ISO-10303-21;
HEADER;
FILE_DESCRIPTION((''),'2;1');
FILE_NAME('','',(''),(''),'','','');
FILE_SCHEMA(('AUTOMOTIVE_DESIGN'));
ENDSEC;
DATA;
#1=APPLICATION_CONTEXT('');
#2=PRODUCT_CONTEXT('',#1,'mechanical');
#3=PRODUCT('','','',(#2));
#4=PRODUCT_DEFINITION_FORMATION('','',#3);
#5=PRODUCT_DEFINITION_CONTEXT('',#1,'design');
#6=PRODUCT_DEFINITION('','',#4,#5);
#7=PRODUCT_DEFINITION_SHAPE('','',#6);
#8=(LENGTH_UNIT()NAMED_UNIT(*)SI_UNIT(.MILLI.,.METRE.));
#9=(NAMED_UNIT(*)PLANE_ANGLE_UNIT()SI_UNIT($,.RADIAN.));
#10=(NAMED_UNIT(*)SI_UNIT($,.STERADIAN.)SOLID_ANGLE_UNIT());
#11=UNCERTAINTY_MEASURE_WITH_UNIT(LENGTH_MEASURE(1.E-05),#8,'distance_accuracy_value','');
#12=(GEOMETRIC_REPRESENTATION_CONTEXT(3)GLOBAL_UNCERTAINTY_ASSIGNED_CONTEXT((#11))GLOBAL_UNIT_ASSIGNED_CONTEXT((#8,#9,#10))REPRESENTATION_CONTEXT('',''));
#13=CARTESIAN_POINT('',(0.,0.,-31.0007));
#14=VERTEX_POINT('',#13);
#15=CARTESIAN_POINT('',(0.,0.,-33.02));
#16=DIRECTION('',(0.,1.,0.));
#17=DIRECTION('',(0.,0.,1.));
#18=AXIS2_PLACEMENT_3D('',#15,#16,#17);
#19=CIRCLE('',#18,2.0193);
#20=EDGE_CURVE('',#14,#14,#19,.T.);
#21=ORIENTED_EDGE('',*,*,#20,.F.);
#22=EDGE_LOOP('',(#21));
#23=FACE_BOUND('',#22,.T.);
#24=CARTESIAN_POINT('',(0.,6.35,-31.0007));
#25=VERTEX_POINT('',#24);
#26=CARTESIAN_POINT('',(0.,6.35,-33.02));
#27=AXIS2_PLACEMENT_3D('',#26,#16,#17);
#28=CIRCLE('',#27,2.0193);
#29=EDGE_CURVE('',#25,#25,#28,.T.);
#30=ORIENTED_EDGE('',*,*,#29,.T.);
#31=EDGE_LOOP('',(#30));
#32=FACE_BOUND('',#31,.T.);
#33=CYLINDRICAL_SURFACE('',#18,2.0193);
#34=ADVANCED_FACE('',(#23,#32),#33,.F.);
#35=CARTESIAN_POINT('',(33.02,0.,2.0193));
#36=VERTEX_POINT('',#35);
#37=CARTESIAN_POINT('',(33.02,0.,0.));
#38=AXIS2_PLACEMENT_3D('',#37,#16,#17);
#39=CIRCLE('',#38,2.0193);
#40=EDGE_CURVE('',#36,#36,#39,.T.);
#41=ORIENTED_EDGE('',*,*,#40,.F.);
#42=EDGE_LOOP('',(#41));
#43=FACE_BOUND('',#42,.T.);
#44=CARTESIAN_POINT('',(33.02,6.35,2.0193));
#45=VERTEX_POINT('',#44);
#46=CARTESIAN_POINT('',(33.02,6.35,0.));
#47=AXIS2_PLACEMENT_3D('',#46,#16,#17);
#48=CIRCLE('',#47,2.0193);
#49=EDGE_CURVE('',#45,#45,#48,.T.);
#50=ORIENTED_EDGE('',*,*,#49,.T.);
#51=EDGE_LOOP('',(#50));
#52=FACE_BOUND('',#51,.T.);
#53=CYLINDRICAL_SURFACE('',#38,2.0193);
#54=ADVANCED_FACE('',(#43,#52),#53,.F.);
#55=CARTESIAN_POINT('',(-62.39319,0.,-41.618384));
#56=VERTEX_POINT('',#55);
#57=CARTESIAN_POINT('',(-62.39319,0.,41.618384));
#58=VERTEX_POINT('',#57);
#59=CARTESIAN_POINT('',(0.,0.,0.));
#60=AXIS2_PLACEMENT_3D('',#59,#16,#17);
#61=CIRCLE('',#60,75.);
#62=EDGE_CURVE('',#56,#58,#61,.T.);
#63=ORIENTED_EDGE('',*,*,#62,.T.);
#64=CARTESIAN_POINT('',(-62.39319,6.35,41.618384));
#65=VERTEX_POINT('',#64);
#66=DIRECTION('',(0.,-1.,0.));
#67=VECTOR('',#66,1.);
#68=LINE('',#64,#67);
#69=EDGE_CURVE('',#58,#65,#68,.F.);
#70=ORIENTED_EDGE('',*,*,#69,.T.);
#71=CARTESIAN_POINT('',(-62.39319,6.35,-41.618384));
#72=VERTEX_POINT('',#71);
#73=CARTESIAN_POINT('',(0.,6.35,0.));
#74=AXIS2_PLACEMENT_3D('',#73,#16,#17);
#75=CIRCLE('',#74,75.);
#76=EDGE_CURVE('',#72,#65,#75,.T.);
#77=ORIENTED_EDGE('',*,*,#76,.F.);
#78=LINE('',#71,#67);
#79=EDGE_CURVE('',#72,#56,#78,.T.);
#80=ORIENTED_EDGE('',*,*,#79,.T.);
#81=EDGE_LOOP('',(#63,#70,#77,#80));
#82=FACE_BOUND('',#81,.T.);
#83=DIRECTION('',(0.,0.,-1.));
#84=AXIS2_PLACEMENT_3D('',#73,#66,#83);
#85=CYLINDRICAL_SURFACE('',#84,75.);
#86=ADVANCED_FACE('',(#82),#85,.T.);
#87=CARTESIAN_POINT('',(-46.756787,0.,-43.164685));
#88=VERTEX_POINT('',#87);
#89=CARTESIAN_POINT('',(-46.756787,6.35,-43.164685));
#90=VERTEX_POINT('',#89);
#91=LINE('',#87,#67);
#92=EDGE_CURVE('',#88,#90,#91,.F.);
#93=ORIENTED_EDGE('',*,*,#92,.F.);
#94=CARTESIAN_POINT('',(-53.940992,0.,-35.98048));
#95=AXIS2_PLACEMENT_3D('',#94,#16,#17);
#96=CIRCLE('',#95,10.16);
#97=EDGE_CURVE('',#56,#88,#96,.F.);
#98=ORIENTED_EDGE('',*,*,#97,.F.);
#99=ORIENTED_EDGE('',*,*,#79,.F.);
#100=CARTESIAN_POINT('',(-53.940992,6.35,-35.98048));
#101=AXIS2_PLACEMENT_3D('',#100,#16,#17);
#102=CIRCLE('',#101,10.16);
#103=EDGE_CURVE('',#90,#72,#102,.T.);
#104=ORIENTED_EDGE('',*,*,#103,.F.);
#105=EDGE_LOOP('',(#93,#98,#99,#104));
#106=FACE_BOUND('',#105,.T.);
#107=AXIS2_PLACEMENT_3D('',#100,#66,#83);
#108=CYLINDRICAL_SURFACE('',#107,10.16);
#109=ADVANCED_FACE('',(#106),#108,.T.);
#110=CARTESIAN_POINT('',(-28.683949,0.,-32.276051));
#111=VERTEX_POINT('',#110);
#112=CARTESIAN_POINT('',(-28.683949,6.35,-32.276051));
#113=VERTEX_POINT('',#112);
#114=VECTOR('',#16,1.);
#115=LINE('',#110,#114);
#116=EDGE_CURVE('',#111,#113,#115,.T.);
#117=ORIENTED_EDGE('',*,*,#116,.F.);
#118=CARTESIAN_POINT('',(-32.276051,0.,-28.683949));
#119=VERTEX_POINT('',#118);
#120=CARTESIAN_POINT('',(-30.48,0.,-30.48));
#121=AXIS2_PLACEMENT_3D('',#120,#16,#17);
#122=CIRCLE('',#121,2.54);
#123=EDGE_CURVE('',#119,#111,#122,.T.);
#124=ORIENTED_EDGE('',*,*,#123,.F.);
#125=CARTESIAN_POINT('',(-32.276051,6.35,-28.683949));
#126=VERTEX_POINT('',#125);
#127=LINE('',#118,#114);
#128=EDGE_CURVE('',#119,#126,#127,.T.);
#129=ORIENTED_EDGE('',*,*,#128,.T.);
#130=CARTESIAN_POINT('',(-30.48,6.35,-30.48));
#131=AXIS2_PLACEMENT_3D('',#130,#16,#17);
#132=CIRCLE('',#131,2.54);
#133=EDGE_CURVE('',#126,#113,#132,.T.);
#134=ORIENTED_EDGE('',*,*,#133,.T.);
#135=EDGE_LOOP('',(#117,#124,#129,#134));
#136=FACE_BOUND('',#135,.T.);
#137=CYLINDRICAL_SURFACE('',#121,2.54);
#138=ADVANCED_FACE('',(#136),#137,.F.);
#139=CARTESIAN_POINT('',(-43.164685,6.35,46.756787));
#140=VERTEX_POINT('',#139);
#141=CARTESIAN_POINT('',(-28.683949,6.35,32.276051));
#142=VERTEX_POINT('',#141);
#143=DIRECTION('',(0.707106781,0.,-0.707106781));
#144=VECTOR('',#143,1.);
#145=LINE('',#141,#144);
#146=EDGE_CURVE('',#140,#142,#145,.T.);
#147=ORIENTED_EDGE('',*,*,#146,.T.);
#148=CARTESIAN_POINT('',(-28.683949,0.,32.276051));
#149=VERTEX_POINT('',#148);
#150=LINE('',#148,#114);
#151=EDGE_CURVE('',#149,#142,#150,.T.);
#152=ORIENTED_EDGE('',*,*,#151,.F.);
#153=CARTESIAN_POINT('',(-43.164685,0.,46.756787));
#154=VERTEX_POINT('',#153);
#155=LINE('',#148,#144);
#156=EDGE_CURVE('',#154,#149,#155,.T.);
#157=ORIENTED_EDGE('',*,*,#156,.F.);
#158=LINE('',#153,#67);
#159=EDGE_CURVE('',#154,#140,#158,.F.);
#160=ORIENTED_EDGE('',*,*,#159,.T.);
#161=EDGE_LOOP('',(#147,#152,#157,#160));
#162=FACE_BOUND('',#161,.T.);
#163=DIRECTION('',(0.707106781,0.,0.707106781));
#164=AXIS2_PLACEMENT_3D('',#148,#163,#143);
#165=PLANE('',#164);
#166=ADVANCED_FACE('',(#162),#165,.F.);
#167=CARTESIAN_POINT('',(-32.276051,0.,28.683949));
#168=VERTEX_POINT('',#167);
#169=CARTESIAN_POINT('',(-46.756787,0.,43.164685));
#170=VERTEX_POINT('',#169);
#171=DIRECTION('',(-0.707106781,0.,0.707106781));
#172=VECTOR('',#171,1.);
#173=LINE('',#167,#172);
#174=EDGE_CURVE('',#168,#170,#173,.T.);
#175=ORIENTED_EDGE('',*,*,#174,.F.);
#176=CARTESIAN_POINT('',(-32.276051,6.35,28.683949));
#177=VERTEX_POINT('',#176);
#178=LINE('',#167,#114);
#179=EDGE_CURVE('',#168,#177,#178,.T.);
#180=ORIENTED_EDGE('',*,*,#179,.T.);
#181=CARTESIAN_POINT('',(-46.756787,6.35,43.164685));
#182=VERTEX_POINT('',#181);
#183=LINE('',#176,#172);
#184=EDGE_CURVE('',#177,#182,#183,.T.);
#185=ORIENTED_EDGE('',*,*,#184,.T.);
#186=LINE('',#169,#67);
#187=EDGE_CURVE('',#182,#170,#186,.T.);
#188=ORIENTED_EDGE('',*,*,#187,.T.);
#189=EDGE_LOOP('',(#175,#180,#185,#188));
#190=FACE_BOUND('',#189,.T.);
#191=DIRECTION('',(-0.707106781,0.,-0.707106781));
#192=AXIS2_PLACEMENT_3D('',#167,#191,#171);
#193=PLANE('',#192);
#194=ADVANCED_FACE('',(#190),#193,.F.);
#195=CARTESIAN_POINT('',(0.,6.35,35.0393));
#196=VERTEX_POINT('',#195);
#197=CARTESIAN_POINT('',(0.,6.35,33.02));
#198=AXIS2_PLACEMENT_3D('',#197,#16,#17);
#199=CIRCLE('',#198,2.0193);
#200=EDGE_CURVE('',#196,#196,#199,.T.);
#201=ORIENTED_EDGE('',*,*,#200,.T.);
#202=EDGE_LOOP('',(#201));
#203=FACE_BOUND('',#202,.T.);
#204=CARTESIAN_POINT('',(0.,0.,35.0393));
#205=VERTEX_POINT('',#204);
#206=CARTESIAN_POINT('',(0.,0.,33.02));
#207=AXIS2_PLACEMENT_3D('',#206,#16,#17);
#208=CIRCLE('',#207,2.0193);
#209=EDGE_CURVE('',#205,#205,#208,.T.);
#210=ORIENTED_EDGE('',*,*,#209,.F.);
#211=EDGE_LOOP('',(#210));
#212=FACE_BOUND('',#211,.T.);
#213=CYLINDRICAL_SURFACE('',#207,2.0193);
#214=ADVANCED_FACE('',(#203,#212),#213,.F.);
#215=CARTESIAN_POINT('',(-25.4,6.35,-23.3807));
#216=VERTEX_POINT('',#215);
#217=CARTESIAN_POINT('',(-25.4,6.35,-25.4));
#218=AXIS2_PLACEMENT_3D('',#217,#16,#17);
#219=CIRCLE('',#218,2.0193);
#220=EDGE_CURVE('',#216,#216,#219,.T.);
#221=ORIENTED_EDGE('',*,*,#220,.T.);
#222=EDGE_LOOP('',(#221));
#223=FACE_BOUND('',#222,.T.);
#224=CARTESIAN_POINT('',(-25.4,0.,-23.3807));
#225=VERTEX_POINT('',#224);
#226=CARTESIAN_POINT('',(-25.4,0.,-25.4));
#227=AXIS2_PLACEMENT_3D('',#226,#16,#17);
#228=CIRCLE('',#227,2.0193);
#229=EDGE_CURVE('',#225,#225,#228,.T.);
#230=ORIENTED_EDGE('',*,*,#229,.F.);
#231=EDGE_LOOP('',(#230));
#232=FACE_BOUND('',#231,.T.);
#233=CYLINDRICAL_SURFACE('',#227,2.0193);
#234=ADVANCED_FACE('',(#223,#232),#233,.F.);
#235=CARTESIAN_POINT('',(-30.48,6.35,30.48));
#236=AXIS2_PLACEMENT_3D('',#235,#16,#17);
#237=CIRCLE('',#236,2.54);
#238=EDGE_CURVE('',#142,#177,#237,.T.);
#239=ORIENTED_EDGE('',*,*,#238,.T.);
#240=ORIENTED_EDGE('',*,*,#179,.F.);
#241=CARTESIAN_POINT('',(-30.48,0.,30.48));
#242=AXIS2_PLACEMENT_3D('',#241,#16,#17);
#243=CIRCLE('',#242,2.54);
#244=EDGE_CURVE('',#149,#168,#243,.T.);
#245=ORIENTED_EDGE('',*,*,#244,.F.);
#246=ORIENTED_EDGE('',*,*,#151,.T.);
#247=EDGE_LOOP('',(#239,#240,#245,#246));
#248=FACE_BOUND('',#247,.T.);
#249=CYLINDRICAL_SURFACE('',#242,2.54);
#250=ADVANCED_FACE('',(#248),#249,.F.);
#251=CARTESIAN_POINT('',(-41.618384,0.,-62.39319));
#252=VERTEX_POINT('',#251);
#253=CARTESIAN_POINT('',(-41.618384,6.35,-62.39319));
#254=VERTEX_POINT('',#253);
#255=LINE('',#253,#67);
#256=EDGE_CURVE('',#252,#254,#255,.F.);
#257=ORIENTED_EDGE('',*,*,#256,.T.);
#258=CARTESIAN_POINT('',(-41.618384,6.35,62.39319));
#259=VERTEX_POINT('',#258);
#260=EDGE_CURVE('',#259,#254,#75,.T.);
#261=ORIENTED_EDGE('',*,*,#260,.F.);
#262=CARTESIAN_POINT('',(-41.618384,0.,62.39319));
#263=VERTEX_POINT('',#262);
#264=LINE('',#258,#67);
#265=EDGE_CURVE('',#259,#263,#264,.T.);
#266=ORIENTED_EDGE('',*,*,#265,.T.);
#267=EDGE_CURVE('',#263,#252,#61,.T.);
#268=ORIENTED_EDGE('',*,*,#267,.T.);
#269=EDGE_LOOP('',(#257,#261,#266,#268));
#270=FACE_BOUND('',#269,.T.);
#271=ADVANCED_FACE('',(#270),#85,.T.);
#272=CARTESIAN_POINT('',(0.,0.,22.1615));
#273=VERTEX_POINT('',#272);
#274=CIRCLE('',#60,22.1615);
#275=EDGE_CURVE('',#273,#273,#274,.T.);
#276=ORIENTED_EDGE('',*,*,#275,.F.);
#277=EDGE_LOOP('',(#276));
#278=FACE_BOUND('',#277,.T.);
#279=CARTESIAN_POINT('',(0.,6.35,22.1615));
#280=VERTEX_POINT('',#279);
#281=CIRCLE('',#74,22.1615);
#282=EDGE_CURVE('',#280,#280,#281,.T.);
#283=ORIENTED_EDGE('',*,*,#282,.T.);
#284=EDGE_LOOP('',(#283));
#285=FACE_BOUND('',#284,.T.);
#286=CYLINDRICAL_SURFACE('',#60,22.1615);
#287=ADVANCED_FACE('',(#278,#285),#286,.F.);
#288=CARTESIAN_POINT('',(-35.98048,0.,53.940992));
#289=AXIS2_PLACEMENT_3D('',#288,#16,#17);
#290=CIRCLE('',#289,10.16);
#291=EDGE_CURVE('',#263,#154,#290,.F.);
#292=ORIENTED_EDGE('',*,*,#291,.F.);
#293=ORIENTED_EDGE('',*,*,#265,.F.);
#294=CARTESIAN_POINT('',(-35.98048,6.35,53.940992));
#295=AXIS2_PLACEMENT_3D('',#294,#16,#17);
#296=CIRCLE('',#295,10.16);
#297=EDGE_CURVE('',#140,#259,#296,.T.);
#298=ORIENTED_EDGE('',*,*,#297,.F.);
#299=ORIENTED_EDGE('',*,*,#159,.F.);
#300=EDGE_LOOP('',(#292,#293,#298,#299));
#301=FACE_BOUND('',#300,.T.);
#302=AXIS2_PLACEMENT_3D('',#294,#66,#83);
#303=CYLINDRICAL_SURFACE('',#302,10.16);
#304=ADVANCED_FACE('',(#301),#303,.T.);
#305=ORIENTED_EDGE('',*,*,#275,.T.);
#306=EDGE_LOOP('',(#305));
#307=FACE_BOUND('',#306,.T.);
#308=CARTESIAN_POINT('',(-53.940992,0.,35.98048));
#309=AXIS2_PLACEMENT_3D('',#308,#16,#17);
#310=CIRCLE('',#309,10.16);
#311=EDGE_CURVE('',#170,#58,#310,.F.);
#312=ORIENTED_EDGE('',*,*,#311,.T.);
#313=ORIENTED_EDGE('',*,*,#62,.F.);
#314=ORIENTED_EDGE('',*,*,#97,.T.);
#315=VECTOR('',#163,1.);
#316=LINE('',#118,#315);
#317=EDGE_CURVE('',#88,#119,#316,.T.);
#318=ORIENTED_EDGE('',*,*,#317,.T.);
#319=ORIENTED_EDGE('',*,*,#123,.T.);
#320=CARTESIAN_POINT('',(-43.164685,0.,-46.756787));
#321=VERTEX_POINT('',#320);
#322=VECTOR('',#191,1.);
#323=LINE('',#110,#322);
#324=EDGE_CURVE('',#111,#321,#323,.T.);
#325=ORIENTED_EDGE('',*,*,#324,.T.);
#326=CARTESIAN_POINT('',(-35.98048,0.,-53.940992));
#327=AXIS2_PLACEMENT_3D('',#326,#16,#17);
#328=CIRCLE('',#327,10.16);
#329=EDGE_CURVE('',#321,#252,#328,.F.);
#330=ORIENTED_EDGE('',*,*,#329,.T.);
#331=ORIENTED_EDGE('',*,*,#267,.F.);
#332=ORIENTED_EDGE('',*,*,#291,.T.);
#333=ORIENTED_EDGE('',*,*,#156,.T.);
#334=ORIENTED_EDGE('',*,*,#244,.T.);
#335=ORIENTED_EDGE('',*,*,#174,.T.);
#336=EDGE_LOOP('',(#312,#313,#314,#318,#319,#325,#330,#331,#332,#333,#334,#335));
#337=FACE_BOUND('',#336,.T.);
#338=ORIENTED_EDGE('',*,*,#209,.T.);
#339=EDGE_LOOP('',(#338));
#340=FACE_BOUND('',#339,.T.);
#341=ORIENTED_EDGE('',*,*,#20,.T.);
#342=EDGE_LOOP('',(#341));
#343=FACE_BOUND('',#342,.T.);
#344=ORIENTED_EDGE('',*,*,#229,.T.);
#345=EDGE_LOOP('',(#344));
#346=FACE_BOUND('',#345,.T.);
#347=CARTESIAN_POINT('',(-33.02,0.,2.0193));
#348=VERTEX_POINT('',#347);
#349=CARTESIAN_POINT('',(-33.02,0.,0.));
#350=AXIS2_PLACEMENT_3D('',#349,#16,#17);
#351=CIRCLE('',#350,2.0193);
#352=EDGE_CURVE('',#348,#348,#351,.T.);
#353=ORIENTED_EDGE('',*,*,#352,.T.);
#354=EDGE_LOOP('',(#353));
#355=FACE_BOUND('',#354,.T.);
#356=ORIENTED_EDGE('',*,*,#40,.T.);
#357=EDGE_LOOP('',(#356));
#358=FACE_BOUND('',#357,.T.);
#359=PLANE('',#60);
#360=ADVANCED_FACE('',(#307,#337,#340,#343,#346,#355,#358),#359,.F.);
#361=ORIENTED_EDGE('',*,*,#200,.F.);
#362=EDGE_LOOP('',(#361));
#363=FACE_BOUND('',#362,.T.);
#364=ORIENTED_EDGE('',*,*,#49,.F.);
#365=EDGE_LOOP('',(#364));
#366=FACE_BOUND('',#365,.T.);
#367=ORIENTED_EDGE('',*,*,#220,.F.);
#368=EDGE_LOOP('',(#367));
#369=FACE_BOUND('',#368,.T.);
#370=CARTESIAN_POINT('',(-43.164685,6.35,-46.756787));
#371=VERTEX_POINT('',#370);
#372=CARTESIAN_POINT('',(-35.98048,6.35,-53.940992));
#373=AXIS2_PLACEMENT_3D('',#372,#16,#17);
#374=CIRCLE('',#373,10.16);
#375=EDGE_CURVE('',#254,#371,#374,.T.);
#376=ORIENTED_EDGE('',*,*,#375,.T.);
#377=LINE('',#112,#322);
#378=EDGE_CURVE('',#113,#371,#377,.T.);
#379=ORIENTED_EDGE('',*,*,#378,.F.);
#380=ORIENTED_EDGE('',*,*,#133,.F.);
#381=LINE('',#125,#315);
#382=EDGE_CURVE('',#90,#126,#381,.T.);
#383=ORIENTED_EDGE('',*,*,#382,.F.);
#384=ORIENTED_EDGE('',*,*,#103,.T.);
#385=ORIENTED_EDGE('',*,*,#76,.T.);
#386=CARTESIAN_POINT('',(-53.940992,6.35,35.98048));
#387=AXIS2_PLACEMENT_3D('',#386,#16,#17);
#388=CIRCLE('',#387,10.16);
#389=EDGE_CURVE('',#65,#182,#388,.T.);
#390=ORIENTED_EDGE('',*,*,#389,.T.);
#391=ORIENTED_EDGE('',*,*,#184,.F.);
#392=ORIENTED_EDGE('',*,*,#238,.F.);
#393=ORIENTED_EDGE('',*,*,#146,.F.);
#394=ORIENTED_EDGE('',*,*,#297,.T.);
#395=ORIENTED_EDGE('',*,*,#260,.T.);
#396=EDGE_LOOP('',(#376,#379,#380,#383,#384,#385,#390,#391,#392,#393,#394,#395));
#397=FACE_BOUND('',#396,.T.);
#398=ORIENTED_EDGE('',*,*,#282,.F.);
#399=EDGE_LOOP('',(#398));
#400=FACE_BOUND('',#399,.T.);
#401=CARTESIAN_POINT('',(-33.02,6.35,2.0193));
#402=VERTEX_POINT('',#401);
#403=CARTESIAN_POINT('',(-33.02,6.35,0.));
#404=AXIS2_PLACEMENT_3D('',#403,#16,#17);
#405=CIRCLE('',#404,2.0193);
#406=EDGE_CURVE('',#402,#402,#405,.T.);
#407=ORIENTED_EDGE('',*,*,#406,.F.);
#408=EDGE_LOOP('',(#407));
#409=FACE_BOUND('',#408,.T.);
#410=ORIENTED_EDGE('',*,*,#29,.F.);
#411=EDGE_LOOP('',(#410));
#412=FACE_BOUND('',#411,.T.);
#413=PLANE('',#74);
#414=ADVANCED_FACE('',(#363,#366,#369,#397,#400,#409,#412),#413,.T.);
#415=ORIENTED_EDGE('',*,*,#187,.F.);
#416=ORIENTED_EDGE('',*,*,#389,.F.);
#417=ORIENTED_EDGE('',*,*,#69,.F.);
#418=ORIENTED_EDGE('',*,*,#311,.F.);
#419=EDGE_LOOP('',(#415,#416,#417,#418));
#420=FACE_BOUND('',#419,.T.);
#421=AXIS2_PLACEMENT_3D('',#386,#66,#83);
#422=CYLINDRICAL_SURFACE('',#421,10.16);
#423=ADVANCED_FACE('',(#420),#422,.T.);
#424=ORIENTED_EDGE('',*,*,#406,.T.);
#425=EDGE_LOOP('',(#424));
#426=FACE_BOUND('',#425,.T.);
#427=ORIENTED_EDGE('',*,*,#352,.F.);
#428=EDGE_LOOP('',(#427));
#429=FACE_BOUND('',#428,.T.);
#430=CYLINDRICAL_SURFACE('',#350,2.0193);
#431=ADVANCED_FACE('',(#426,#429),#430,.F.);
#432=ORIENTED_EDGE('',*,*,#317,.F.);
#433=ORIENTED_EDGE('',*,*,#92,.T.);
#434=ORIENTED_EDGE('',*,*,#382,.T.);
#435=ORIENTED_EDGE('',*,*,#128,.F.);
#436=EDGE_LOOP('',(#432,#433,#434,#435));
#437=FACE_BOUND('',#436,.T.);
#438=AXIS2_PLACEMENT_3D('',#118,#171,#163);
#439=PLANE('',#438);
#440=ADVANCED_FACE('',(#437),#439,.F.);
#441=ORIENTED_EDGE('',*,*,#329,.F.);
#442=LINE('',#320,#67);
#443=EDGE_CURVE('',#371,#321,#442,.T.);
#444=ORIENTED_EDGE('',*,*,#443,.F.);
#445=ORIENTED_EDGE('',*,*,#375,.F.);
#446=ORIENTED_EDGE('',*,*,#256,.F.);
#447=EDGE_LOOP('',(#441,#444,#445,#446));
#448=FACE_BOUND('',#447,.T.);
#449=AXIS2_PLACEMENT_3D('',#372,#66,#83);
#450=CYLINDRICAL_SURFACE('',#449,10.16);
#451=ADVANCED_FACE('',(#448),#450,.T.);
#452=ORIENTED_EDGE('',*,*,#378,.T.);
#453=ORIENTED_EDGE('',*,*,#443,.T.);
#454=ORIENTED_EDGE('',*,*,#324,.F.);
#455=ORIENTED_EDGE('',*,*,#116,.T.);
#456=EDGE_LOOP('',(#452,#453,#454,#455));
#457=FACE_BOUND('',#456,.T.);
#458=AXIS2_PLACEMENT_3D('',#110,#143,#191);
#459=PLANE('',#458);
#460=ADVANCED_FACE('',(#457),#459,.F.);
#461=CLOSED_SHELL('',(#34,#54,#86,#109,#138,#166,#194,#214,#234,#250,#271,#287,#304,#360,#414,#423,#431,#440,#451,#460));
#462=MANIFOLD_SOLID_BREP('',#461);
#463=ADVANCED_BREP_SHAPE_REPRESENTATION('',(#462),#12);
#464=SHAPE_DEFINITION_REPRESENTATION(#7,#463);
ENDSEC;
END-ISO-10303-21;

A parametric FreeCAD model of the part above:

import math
import FreeCAD as App
import Part
import Sketcher
from FreeCAD import Vector
Q = App.Units.Quantity


def edges_at(feature, points):
    """Names of the edges that pass closest to the given points."""
    edges = feature.Shape.Edges
    near = lambda p: min(range(len(edges)), key=lambda i: edges[i].distToShape(Part.Vertex(*p))[0])
    return sorted({f"Edge{near(p) + 1}" for p in points})

doc = App.newDocument("Part")
params = doc.addObject("Spreadsheet::Sheet", "Params")
for row, (alias, value) in enumerate([
    ("pad1_length", "0.25 in"),
    ("sketch2_radius", "0.1 in"),
    ("sketch2_diameter", "1.745 in"),
    ("sketch2_diameter2", "0.159 in"),
    ("fillet_radius", "0.4 in"),
], start=1):
    params.set(f"A{row}", alias)
    params.set(f"B{row}", "=" + value)
    params.setAlias(f"B{row}", alias)

body = doc.addObject("PartDesign::Body", "Body")

sketch1 = body.newObject("Sketcher::SketchObject", "Sketch")
sketch1.AttachmentSupport = (doc.getObject("XZ_Plane"), [""])
sketch1.MapMode = "FlatFace"
sketch1.addGeometry(Part.Circle(Vector(0, 0, 0), Vector(0, 0, 1), 75), False)
sketch1.addConstraint([
    Sketcher.Constraint("Coincident", 0, 3, -1, 1),
    Sketcher.Constraint("Diameter", 0, Q("150 mm")),
])
pad1 = body.newObject("PartDesign::Pad", "Pad")
pad1.Profile = sketch1
pad1.setExpression("Length", "Params.pad1_length")
pad1.Reversed = True

sketch2 = body.newObject("Sketcher::SketchObject", "Sketch001")
sketch2.AttachmentSupport = (doc.getObject("XZ_Plane"), [""])
sketch2.MapMode = "FlatFace"
sketch2.AttachmentOffset = App.Placement(Vector(0, 0, -0.25 * 25.4), App.Rotation())
sketch2.addGeometry([
    Part.Circle(Vector(0, 0, 0), Vector(0, 0, 1), 22.2),
    Part.Circle(Vector(0, -33, 0), Vector(0, 0, 1), 2),
    Part.Circle(Vector(-33, 0, 0), Vector(0, 0, 1), 2),
    Part.Circle(Vector(0, 33, 0), Vector(0, 0, 1), 2),
    Part.Circle(Vector(33, 0, 0), Vector(0, 0, 1), 2),
    Part.Circle(Vector(-25.4, -25.4, 0), Vector(0, 0, 1), 2),
    Part.LineSegment(Vector(-54.8, -51.2, 0), Vector(-32.3, -28.7, 0)),
    Part.ArcOfCircle(Part.Circle(Vector(-30.5, -30.5, 0), Vector(0, 0, 1), 2.5), math.radians(-45), math.radians(135)),
    Part.LineSegment(Vector(-28.7, -32.3, 0), Vector(-51.2, -54.8, 0)),
    Part.ArcOfCircle(Part.Circle(Vector(-53, -53, 0), Vector(0, 0, 1), 2.5), math.radians(135), math.radians(315)),
    Part.LineSegment(Vector(-51.2, 54.8, 0), Vector(-28.7, 32.3, 0)),
    Part.ArcOfCircle(Part.Circle(Vector(-30.5, 30.5, 0), Vector(0, 0, 1), 2.5), math.radians(-135), math.radians(45)),
    Part.LineSegment(Vector(-32.3, 28.7, 0), Vector(-54.8, 51.2, 0)),
    Part.ArcOfCircle(Part.Circle(Vector(-53, 53, 0), Vector(0, 0, 1), 2.5), math.radians(45), math.radians(225)),
], False)
sketch2.addConstraint([
    Sketcher.Constraint("Tangent", 6, 2, 7, 2),
    Sketcher.Constraint("Tangent", 7, 1, 8, 1),
    Sketcher.Constraint("Tangent", 8, 2, 9, 2),
    Sketcher.Constraint("Tangent", 9, 1, 6, 1),
    Sketcher.Constraint("Tangent", 10, 2, 11, 2),
    Sketcher.Constraint("Tangent", 11, 1, 12, 1),
    Sketcher.Constraint("Tangent", 12, 2, 13, 2),
    Sketcher.Constraint("Tangent", 13, 1, 10, 1),
    Sketcher.Constraint("Coincident", 0, 3, -1, 1),
    Sketcher.Constraint("Equal", 1, 2),
    Sketcher.Constraint("Equal", 2, 3),
    Sketcher.Constraint("Equal", 3, 4),
    Sketcher.Constraint("Equal", 4, 5),
    Sketcher.Constraint("Equal", 7, 9),
    Sketcher.Constraint("Equal", 9, 11),
    Sketcher.Constraint("Equal", 11, 13),
    Sketcher.Constraint("Symmetric", 1, 3, 3, 3, -1, 1),
    Sketcher.Constraint("Symmetric", 2, 3, 4, 3, -1, 1),
    Sketcher.Constraint("Symmetric", 7, 3, 11, 3, -1),
    Sketcher.Constraint("Symmetric", 9, 3, 13, 3, -1),
    Sketcher.Constraint("PointOnObject", 1, 3, -2),
    Sketcher.Constraint("PointOnObject", 2, 3, -1),
    Sketcher.Constraint("Perpendicular", 8, 10),
    Sketcher.Constraint("Radius", 7, Q("0.1 in")),
    Sketcher.Constraint("Diameter", 0, Q("1.745 in")),
    Sketcher.Constraint("Diameter", 1, Q("0.159 in")),
    Sketcher.Constraint("DistanceX", 5, 3, -1, 1, Q("1 in")),
    Sketcher.Constraint("DistanceY", 5, 3, -1, 1, Q("1 in")),
    Sketcher.Constraint("DistanceY", 1, 3, -1, 1, Q("1.3 in")),
    Sketcher.Constraint("DistanceX", 2, 3, -1, 1, Q("1.3 in")),
    Sketcher.Constraint("DistanceX", 7, 3, -1, 1, Q("1.2 in")),
    Sketcher.Constraint("DistanceY", 7, 3, -1, 1, Q("1.2 in")),
    Sketcher.Constraint("DistanceY", 8, 2, 6, 2, Q("26.114689 mm")),
])
sketch2.setExpression("Constraints[23]", "Params.sketch2_radius")
sketch2.setExpression("Constraints[24]", "Params.sketch2_diameter")
sketch2.setExpression("Constraints[25]", "Params.sketch2_diameter2")
pocket1 = body.newObject("PartDesign::Pocket", "Pocket")
pocket1.Profile = sketch2
pocket1.Type = "ThroughAll"
pocket1.Reversed = True
doc.recompute()

fillet = body.newObject("PartDesign::Fillet", "Fillet")
fillet.Base = (pocket1, edges_at(pocket1, [
    (-51.207, 3.175, 54.799),
    (-54.799, 3.175, 51.207),
    (-54.799, 3.175, -51.207),
    (-51.207, 3.175, -54.799),
]))
fillet.setExpression("Radius", "Params.fillet_radius")

doc.recompute()
